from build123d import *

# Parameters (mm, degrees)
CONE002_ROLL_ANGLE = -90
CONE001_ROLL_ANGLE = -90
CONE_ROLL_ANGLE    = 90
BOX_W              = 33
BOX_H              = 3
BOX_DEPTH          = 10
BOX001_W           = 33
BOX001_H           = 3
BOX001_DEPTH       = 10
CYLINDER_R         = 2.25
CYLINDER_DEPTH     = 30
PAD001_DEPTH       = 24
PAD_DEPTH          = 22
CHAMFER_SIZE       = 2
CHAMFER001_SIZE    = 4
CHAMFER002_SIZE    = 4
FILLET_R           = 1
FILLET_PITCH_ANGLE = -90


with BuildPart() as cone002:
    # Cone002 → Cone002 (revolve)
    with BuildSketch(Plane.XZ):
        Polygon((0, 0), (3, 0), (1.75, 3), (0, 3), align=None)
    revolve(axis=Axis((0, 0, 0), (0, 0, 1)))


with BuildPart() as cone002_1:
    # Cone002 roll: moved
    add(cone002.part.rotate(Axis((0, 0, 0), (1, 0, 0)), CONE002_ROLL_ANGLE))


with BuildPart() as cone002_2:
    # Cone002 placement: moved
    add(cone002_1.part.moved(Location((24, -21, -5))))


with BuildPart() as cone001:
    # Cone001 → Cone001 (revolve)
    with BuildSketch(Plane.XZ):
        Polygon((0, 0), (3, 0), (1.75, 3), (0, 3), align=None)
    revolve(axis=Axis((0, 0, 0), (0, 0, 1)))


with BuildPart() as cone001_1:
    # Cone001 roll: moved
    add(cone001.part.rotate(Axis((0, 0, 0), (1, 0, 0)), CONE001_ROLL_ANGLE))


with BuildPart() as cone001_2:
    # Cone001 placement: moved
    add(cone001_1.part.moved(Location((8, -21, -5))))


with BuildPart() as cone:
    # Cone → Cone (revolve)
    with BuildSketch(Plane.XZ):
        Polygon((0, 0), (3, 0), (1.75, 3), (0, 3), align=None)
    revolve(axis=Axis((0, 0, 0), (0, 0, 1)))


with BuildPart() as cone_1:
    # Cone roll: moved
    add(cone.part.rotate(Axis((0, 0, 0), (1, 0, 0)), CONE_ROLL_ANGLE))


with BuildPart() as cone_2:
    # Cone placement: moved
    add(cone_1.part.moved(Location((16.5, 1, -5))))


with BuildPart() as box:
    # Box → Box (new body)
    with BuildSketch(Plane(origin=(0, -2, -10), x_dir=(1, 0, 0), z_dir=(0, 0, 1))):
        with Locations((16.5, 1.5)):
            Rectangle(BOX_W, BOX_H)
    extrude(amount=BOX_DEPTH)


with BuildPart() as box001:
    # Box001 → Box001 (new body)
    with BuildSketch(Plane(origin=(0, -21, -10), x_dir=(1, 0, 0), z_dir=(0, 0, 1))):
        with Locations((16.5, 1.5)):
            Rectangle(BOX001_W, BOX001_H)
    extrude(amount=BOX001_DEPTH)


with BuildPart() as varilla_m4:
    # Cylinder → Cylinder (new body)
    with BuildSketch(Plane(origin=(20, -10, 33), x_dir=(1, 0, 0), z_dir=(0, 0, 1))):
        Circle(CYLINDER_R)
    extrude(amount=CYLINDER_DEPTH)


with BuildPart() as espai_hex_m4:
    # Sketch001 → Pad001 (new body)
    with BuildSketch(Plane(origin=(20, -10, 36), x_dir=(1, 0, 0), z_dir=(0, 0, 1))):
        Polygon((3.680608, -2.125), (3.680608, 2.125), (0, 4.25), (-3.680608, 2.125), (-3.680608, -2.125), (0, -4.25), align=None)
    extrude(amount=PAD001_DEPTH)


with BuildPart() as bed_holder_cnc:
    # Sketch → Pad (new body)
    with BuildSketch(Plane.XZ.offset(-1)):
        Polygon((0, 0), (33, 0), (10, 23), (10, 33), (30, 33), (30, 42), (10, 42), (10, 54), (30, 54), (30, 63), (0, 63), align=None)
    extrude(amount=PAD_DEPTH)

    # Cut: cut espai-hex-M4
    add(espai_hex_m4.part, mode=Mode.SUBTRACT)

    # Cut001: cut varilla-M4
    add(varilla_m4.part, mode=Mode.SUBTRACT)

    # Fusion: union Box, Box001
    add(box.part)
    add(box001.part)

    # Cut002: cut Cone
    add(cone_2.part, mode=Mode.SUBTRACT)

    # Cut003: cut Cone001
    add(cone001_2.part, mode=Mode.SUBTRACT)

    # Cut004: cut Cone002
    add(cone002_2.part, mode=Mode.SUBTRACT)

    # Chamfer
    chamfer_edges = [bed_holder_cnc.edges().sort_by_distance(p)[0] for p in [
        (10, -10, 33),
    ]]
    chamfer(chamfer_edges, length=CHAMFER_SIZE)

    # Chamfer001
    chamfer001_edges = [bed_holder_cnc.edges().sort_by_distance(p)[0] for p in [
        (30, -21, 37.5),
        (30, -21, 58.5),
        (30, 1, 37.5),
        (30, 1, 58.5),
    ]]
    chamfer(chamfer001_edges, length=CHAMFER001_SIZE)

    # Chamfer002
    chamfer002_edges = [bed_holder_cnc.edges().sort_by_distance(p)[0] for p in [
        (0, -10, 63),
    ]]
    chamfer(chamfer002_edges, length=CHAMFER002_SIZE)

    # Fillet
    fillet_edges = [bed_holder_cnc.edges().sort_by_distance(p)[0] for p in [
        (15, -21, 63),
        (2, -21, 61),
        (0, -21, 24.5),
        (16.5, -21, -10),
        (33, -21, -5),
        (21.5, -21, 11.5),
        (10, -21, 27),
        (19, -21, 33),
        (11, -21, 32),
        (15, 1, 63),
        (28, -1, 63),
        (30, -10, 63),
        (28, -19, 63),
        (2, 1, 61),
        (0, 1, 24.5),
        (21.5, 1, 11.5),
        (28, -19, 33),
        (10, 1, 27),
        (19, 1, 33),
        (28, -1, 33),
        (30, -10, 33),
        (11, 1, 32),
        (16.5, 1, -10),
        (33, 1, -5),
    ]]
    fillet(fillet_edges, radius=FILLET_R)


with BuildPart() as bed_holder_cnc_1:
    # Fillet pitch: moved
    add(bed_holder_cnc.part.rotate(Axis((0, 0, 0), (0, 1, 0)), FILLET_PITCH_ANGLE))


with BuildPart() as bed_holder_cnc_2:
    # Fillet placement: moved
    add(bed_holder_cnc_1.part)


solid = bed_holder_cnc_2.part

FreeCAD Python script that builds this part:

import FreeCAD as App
import Part
import Sketcher
Q = App.Units.Quantity


def edges_at(feature, points):
    """Names of the edges that pass closest to the given points."""
    edges = feature.Shape.Edges
    near = lambda p: min(range(len(edges)), key=lambda i: edges[i].distToShape(Part.Vertex(*p))[0])
    return sorted({f"Edge{near(p) + 1}" for p in points})

doc = App.newDocument("Part")
body = doc.addObject("PartDesign::Body", "Body")

sketch1 = doc.addObject("Sketcher::SketchObject", "Sketch")
body.addObject(sketch1)
sketch1.AttachmentSupport = (doc.XZ_Plane, [""])
sketch1.MapMode = "FlatFace"
sketch1.addGeometry([
    Part.LineSegment(App.Vector(0, 0, 0), App.Vector(3, 0, 0)),
    Part.LineSegment(App.Vector(3, 0, 0), App.Vector(1.8, 3, 0)),
    Part.LineSegment(App.Vector(1.8, 3, 0), App.Vector(0, 3, 0)),
    Part.LineSegment(App.Vector(0, 3, 0), App.Vector(0, 0, 0)),
], False)
sketch1.addConstraint([
    Sketcher.Constraint("Coincident", 0, 2, 1, 1),
    Sketcher.Constraint("Coincident", 1, 2, 2, 1),
    Sketcher.Constraint("Coincident", 2, 2, 3, 1),
    Sketcher.Constraint("Coincident", 3, 2, 0, 1),
    Sketcher.Constraint("Horizontal", 0),
    Sketcher.Constraint("Horizontal", 2),
    Sketcher.Constraint("Vertical", 3),
    Sketcher.Constraint("Coincident", 3, 2, -1, 1),
    Sketcher.Constraint("Equal", 0, 3),
    Sketcher.Constraint("DistanceX", 0, 1, 0, 2, 3.0),
    Sketcher.Constraint("DistanceX", 2, 2, 2, 1, 1.75),
])
revolution = doc.addObject("PartDesign::Revolution", "Revolution")
body.addObject(revolution)
revolution.Profile = sketch1
revolution.ReferenceAxis = (sketch1, ["V_Axis"])
revolution.Angle = 360
body2 = doc.addObject("PartDesign::Body", "Body001")
doc.recompute()

body.Placement = App.Placement(App.Vector(0, 0, 0), App.Rotation(App.Vector(1, 0, 0), 270))
boolean = doc.addObject("PartDesign::Boolean", "Boolean")
body2.addObject(boolean)
boolean.Type = "Fuse"
boolean.addObjects([body])
body3 = doc.addObject("PartDesign::Body", "Body002")
doc.recompute()

body2.Placement = App.Placement(App.Vector(24, -21, -5), App.Rotation(App.Vector(0, 0, 1), 0))
boolean2 = doc.addObject("PartDesign::Boolean", "Boolean001")
body3.addObject(boolean2)
boolean2.Type = "Fuse"
boolean2.addObjects([body2])
body4 = doc.addObject("PartDesign::Body", "Body003")

sketch2 = doc.addObject("Sketcher::SketchObject", "Sketch001")
body4.addObject(sketch2)
sketch2.AttachmentSupport = (doc.getObject("XZ_Plane003"), [""])
sketch2.MapMode = "FlatFace"
sketch2.addGeometry([
    Part.LineSegment(App.Vector(0, 0, 0), App.Vector(3, 0, 0)),
    Part.LineSegment(App.Vector(3, 0, 0), App.Vector(1.8, 3, 0)),
    Part.LineSegment(App.Vector(1.8, 3, 0), App.Vector(0, 3, 0)),
    Part.LineSegment(App.Vector(0, 3, 0), App.Vector(0, 0, 0)),
], False)
sketch2.addConstraint([
    Sketcher.Constraint("Coincident", 0, 2, 1, 1),
    Sketcher.Constraint("Coincident", 1, 2, 2, 1),
    Sketcher.Constraint("Coincident", 2, 2, 3, 1),
    Sketcher.Constraint("Coincident", 3, 2, 0, 1),
    Sketcher.Constraint("Horizontal", 0),
    Sketcher.Constraint("Horizontal", 2),
    Sketcher.Constraint("Vertical", 3),
    Sketcher.Constraint("Coincident", 3, 2, -1, 1),
    Sketcher.Constraint("Equal", 0, 3),
    Sketcher.Constraint("DistanceX", 0, 1, 0, 2, 3.0),
    Sketcher.Constraint("DistanceX", 2, 2, 2, 1, 1.75),
])
revolution2 = doc.addObject("PartDesign::Revolution", "Revolution001")
body4.addObject(revolution2)
revolution2.Profile = sketch2
revolution2.ReferenceAxis = (sketch2, ["V_Axis"])
revolution2.Angle = 360
body5 = doc.addObject("PartDesign::Body", "Body004")
doc.recompute()

body4.Placement = App.Placement(App.Vector(0, 0, 0), App.Rotation(App.Vector(1, 0, 0), 270))
boolean3 = doc.addObject("PartDesign::Boolean", "Boolean002")
body5.addObject(boolean3)
boolean3.Type = "Fuse"
boolean3.addObjects([body4])
body6 = doc.addObject("PartDesign::Body", "Body005")
doc.recompute()

body5.Placement = App.Placement(App.Vector(8, -21, -5), App.Rotation(App.Vector(0, 0, 1), 0))
boolean4 = doc.addObject("PartDesign::Boolean", "Boolean003")
body6.addObject(boolean4)
boolean4.Type = "Fuse"
boolean4.addObjects([body5])
body7 = doc.addObject("PartDesign::Body", "Body006")

sketch3 = doc.addObject("Sketcher::SketchObject", "Sketch002")
body7.addObject(sketch3)
sketch3.AttachmentSupport = (doc.getObject("XZ_Plane006"), [""])
sketch3.MapMode = "FlatFace"
sketch3.addGeometry([
    Part.LineSegment(App.Vector(0, 0, 0), App.Vector(3, 0, 0)),
    Part.LineSegment(App.Vector(3, 0, 0), App.Vector(1.8, 3, 0)),
    Part.LineSegment(App.Vector(1.8, 3, 0), App.Vector(0, 3, 0)),
    Part.LineSegment(App.Vector(0, 3, 0), App.Vector(0, 0, 0)),
], False)
sketch3.addConstraint([
    Sketcher.Constraint("Coincident", 0, 2, 1, 1),
    Sketcher.Constraint("Coincident", 1, 2, 2, 1),
    Sketcher.Constraint("Coincident", 2, 2, 3, 1),
    Sketcher.Constraint("Coincident", 3, 2, 0, 1),
    Sketcher.Constraint("Horizontal", 0),
    Sketcher.Constraint("Horizontal", 2),
    Sketcher.Constraint("Vertical", 3),
    Sketcher.Constraint("Coincident", 3, 2, -1, 1),
    Sketcher.Constraint("Equal", 0, 3),
    Sketcher.Constraint("DistanceX", 0, 1, 0, 2, 3.0),
    Sketcher.Constraint("DistanceX", 2, 2, 2, 1, 1.75),
])
revolution3 = doc.addObject("PartDesign::Revolution", "Revolution002")
body7.addObject(revolution3)
revolution3.Profile = sketch3
revolution3.ReferenceAxis = (sketch3, ["V_Axis"])
revolution3.Angle = 360
body8 = doc.addObject("PartDesign::Body", "Body007")
doc.recompute()

body7.Placement = App.Placement(App.Vector(0, 0, 0), App.Rotation(App.Vector(1, 0, 0), 90))
boolean5 = doc.addObject("PartDesign::Boolean", "Boolean004")
body8.addObject(boolean5)
boolean5.Type = "Fuse"
boolean5.addObjects([body7])
body9 = doc.addObject("PartDesign::Body", "Body008")
doc.recompute()

body8.Placement = App.Placement(App.Vector(16.5, 1, -5), App.Rotation(App.Vector(0, 0, 1), 0))
boolean6 = doc.addObject("PartDesign::Boolean", "Boolean005")
body9.addObject(boolean6)
boolean6.Type = "Fuse"
boolean6.addObjects([body8])
body10 = doc.addObject("PartDesign::Body", "Body009")

sketch4 = doc.addObject("Sketcher::SketchObject", "Sketch003")
body10.addObject(sketch4)
sketch4.AttachmentSupport = (doc.getObject("XY_Plane009"), [""])
sketch4.MapMode = "FlatFace"
sketch4.AttachmentOffset = App.Placement(App.Vector(0, 0, -10), App.Rotation())
sketch4.addGeometry([
    Part.LineSegment(App.Vector(0, 1, 0), App.Vector(0, -2, 0)),
    Part.LineSegment(App.Vector(0, -2, 0), App.Vector(33, -2, 0)),
    Part.LineSegment(App.Vector(33, -2, 0), App.Vector(33, 1, 0)),
    Part.LineSegment(App.Vector(33, 1, 0), App.Vector(0, 1, 0)),
], False)
sketch4.addConstraint([
    Sketcher.Constraint("Coincident", 0, 2, 1, 1),
    Sketcher.Constraint("Coincident", 1, 2, 2, 1),
    Sketcher.Constraint("Coincident", 2, 2, 3, 1),
    Sketcher.Constraint("Coincident", 3, 2, 0, 1),
    Sketcher.Constraint("Vertical", 0),
    Sketcher.Constraint("Horizontal", 1),
    Sketcher.Constraint("Vertical", 2),
    Sketcher.Constraint("Horizontal", 3),
    Sketcher.Constraint("PointOnObject", 0, 2, -2),
    Sketcher.Constraint("DistanceX", 1, 1, 1, 2, 33.0),
    Sketcher.Constraint("DistanceY", 0, 2, 0, 1, 3.0),
    Sketcher.Constraint("DistanceY", 0, 2, -1, 1, 2.0),
])
pad1 = doc.addObject("PartDesign::Pad", "Pad")
body10.addObject(pad1)
pad1.Profile = sketch4
pad1.Length = 10
body11 = doc.addObject("PartDesign::Body", "Body010")

sketch5 = doc.addObject("Sketcher::SketchObject", "Sketch004")
body11.addObject(sketch5)
sketch5.AttachmentSupport = (doc.getObject("XY_Plane010"), [""])
sketch5.MapMode = "FlatFace"
sketch5.AttachmentOffset = App.Placement(App.Vector(0, 0, -10), App.Rotation())
sketch5.addGeometry([
    Part.LineSegment(App.Vector(0, -18, 0), App.Vector(0, -21, 0)),
    Part.LineSegment(App.Vector(0, -21, 0), App.Vector(33, -21, 0)),
    Part.LineSegment(App.Vector(33, -21, 0), App.Vector(33, -18, 0)),
    Part.LineSegment(App.Vector(33, -18, 0), App.Vector(0, -18, 0)),
], False)
sketch5.addConstraint([
    Sketcher.Constraint("Coincident", 0, 2, 1, 1),
    Sketcher.Constraint("Coincident", 1, 2, 2, 1),
    Sketcher.Constraint("Coincident", 2, 2, 3, 1),
    Sketcher.Constraint("Coincident", 3, 2, 0, 1),
    Sketcher.Constraint("Vertical", 0),
    Sketcher.Constraint("Horizontal", 1),
    Sketcher.Constraint("Vertical", 2),
    Sketcher.Constraint("Horizontal", 3),
    Sketcher.Constraint("PointOnObject", 0, 2, -2),
    Sketcher.Constraint("DistanceX", 1, 1, 1, 2, 33.0),
    Sketcher.Constraint("DistanceY", 0, 2, 0, 1, 3.0),
    Sketcher.Constraint("DistanceY", 0, 2, -1, 1, 21.0),
])
pad2 = doc.addObject("PartDesign::Pad", "Pad001")
body11.addObject(pad2)
pad2.Profile = sketch5
pad2.Length = 10
body12 = doc.addObject("PartDesign::Body", "Body011")

sketch6 = doc.addObject("Sketcher::SketchObject", "Sketch005")
body12.addObject(sketch6)
sketch6.AttachmentSupport = (doc.getObject("XY_Plane011"), [""])
sketch6.MapMode = "FlatFace"
sketch6.AttachmentOffset = App.Placement(App.Vector(0, 0, 33), App.Rotation())
sketch6.addGeometry(Part.Circle(App.Vector(20, -10, 0), App.Vector(0, 0, 1), 2.2), False)
sketch6.addConstraint([
    Sketcher.Constraint("Diameter", 0, 4.5),
    Sketcher.Constraint("DistanceX", -1, 1, 0, 3, 20.0),
    Sketcher.Constraint("DistanceY", 0, 3, -1, 1, 10.0),
])
pad3 = doc.addObject("PartDesign::Pad", "Pad002")
body12.addObject(pad3)
pad3.Profile = sketch6
pad3.Length = 30
body13 = doc.addObject("PartDesign::Body", "Body012")

sketch7 = doc.addObject("Sketcher::SketchObject", "Sketch006")
body13.addObject(sketch7)
sketch7.AttachmentSupport = (doc.getObject("XY_Plane012"), [""])
sketch7.MapMode = "FlatFace"
sketch7.AttachmentOffset = App.Placement(App.Vector(0, 0, 36), App.Rotation())
sketch7.addGeometry([
    Part.LineSegment(App.Vector(23.7, -12.1, 0), App.Vector(23.7, -7.9, 0)),
    Part.LineSegment(App.Vector(23.7, -7.9, 0), App.Vector(20, -5.8, 0)),
    Part.LineSegment(App.Vector(20, -5.8, 0), App.Vector(16.3, -7.9, 0)),
    Part.LineSegment(App.Vector(16.3, -7.9, 0), App.Vector(16.3, -12.1, 0)),
    Part.LineSegment(App.Vector(16.3, -12.1, 0), App.Vector(20, -14.2, 0)),
    Part.LineSegment(App.Vector(20, -14.2, 0), App.Vector(23.7, -12.1, 0)),
], False)
sketch7.addConstraint([
    Sketcher.Constraint("Coincident", 0, 2, 1, 1),
    Sketcher.Constraint("Coincident", 1, 2, 2, 1),
    Sketcher.Constraint("Coincident", 2, 2, 3, 1),
    Sketcher.Constraint("Coincident", 3, 2, 4, 1),
    Sketcher.Constraint("Coincident", 4, 2, 5, 1),
    Sketcher.Constraint("Coincident", 5, 2, 0, 1),
    Sketcher.Constraint("Vertical", 0),
    Sketcher.Constraint("Vertical", 3),
    Sketcher.Constraint("Parallel", 1, 4),
    Sketcher.Constraint("Parallel", 2, 5),
    Sketcher.Constraint("Horizontal", 0, 2, 2, 2),
    Sketcher.Constraint("Horizontal", 3, 2, 5, 2),
    Sketcher.Constraint("Vertical", 1, 2, 4, 2),
    Sketcher.Constraint("Angle", 1, Q("150 deg")),
    Sketcher.Constraint("DistanceX", -1, 1, 1, 2, 20.0),
    Sketcher.Constraint("DistanceY", 0, 1, 0, 2, 4.25),
    Sketcher.Constraint("DistanceY", 4, 2, 1, 2, 8.5),
    Sketcher.Constraint("DistanceY", 1, 2, -1, 1, 5.75),
])
pad4 = doc.addObject("PartDesign::Pad", "Pad003")
body13.addObject(pad4)
pad4.Profile = sketch7
pad4.Length = 24
body14 = doc.addObject("PartDesign::Body", "Body013")

sketch8 = doc.addObject("Sketcher::SketchObject", "Sketch007")
body14.addObject(sketch8)
sketch8.AttachmentSupport = (doc.getObject("XZ_Plane013"), [""])
sketch8.MapMode = "FlatFace"
sketch8.AttachmentOffset = App.Placement(App.Vector(0, 0, -1), App.Rotation())
sketch8.addGeometry([
    Part.LineSegment(App.Vector(0, 0, 0), App.Vector(33, 0, 0)),
    Part.LineSegment(App.Vector(33, 0, 0), App.Vector(10, 23, 0)),
    Part.LineSegment(App.Vector(10, 23, 0), App.Vector(10, 33, 0)),
    Part.LineSegment(App.Vector(10, 33, 0), App.Vector(30, 33, 0)),
    Part.LineSegment(App.Vector(30, 33, 0), App.Vector(30, 42, 0)),
    Part.LineSegment(App.Vector(30, 42, 0), App.Vector(10, 42, 0)),
    Part.LineSegment(App.Vector(10, 42, 0), App.Vector(10, 54, 0)),
    Part.LineSegment(App.Vector(10, 54, 0), App.Vector(30, 54, 0)),
    Part.LineSegment(App.Vector(30, 54, 0), App.Vector(30, 63, 0)),
    Part.LineSegment(App.Vector(30, 63, 0), App.Vector(0, 63, 0)),
    Part.LineSegment(App.Vector(0, 63, 0), App.Vector(0, 0, 0)),
], False)
sketch8.addConstraint([
    Sketcher.Constraint("Coincident", 0, 2, 1, 1),
    Sketcher.Constraint("Coincident", 1, 2, 2, 1),
    Sketcher.Constraint("Coincident", 2, 2, 3, 1),
    Sketcher.Constraint("Coincident", 3, 2, 4, 1),
    Sketcher.Constraint("Coincident", 4, 2, 5, 1),
    Sketcher.Constraint("Coincident", 5, 2, 6, 1),
    Sketcher.Constraint("Coincident", 6, 2, 7, 1),
    Sketcher.Constraint("Coincident", 7, 2, 8, 1),
    Sketcher.Constraint("Coincident", 8, 2, 9, 1),
    Sketcher.Constraint("Coincident", 9, 2, 10, 1),
    Sketcher.Constraint("Coincident", 10, 2, 0, 1),
    Sketcher.Constraint("Horizontal", 0),
    Sketcher.Constraint("Vertical", 2),
    Sketcher.Constraint("Horizontal", 3),
    Sketcher.Constraint("Vertical", 4),
    Sketcher.Constraint("Horizontal", 5),
    Sketcher.Constraint("Vertical", 6),
    Sketcher.Constraint("Horizontal", 7),
    Sketcher.Constraint("Vertical", 8),
    Sketcher.Constraint("Horizontal", 9),
    Sketcher.Constraint("Vertical", 10),
    Sketcher.Constraint("Coincident", 10, 2, -1, 1),
    Sketcher.Constraint("Vertical", 2, 2, 5, 2),
    Sketcher.Constraint("Vertical", 4, 2, 7, 2),
    Sketcher.Constraint("Equal", 4, 8),
    Sketcher.Constraint("DistanceX", 0, 1, 0, 2, 33.0),
    Sketcher.Constraint("DistanceX", 3, 1, 3, 2, 20.0),
    Sketcher.Constraint("DistanceX", 9, 2, 9, 1, 30.0),
    Sketcher.Constraint("DistanceY", 2, 1, 2, 2, 10.0),
    Sketcher.Constraint("DistanceY", 4, 1, 4, 2, 9.0),
    Sketcher.Constraint("DistanceY", 6, 1, 6, 2, 12.0),
    Sketcher.Constraint("DistanceY", 10, 2, 10, 1, 63.0),
])
pad5 = doc.addObject("PartDesign::Pad", "Pad004")
body14.addObject(pad5)
pad5.Profile = sketch8
pad5.Length = 22
doc.recompute()

boolean7 = doc.addObject("PartDesign::Boolean", "Boolean006")
body14.addObject(boolean7)
boolean7.Type = "Cut"
boolean7.addObjects([body13])
doc.recompute()

boolean8 = doc.addObject("PartDesign::Boolean", "Boolean007")
body14.addObject(boolean8)
boolean8.Type = "Cut"
boolean8.addObjects([body12])
doc.recompute()

boolean9 = doc.addObject("PartDesign::Boolean", "Boolean008")
body14.addObject(boolean9)
boolean9.Type = "Fuse"
boolean9.addObjects([body10])
doc.recompute()

boolean10 = doc.addObject("PartDesign::Boolean", "Boolean009")
body14.addObject(boolean10)
boolean10.Type = "Fuse"
boolean10.addObjects([body11])
doc.recompute()

boolean11 = doc.addObject("PartDesign::Boolean", "Boolean010")
body14.addObject(boolean11)
boolean11.Type = "Cut"
boolean11.addObjects([body9])
doc.recompute()

boolean12 = doc.addObject("PartDesign::Boolean", "Boolean011")
body14.addObject(boolean12)
boolean12.Type = "Cut"
boolean12.addObjects([body6])
doc.recompute()

boolean13 = doc.addObject("PartDesign::Boolean", "Boolean012")
body14.addObject(boolean13)
boolean13.Type = "Cut"
boolean13.addObjects([body3])
doc.recompute()

chamfer = doc.addObject("PartDesign::Chamfer", "Chamfer")
body14.addObject(chamfer)
chamfer.Base = (boolean13, edges_at(boolean13, [(10, -10, 33)]))
chamfer.Size = 2
doc.recompute()

chamfer2 = doc.addObject("PartDesign::Chamfer", "Chamfer001")
body14.addObject(chamfer2)
chamfer2.Base = (chamfer, edges_at(chamfer, [
    (30, -21, 37.5),
    (30, -21, 58.5),
    (30, 1, 37.5),
    (30, 1, 58.5),
]))
chamfer2.Size = 4
doc.recompute()

chamfer3 = doc.addObject("PartDesign::Chamfer", "Chamfer002")
body14.addObject(chamfer3)
chamfer3.Base = (chamfer2, edges_at(chamfer2, [(0, -10, 63)]))
chamfer3.Size = 4
doc.recompute()

fillet = doc.addObject("PartDesign::Fillet", "Fillet")
body14.addObject(fillet)
fillet.Base = (chamfer3, edges_at(chamfer3, [
    (15, -21, 63),
    (2, -21, 61),
    (0, -21, 24.5),
    (16.5, -21, -10),
    (33, -21, -5),
    (21.5, -21, 11.5),
    (10, -21, 27),
    (19, -21, 33),
    (11, -21, 32),
    (15, 1, 63),
    (28, -1, 63),
    (30, -10, 63),
    (28, -19, 63),
    (2, 1, 61),
    (0, 1, 24.5),
    (21.5, 1, 11.5),
    (28, -19, 33),
    (10, 1, 27),
    (19, 1, 33),
    (28, -1, 33),
    (30, -10, 33),
    (11, 1, 32),
    (16.5, 1, -10),
    (33, 1, -5),
]))
fillet.Radius = 1
body15 = doc.addObject("PartDesign::Body", "Body014")
doc.recompute()

body14.Placement = App.Placement(App.Vector(0, 0, 0), App.Rotation(App.Vector(0, 1, 0), 270))
boolean14 = doc.addObject("PartDesign::Boolean", "Boolean013")
body15.addObject(boolean14)
boolean14.Type = "Fuse"
boolean14.addObjects([body14])

doc.recompute()
